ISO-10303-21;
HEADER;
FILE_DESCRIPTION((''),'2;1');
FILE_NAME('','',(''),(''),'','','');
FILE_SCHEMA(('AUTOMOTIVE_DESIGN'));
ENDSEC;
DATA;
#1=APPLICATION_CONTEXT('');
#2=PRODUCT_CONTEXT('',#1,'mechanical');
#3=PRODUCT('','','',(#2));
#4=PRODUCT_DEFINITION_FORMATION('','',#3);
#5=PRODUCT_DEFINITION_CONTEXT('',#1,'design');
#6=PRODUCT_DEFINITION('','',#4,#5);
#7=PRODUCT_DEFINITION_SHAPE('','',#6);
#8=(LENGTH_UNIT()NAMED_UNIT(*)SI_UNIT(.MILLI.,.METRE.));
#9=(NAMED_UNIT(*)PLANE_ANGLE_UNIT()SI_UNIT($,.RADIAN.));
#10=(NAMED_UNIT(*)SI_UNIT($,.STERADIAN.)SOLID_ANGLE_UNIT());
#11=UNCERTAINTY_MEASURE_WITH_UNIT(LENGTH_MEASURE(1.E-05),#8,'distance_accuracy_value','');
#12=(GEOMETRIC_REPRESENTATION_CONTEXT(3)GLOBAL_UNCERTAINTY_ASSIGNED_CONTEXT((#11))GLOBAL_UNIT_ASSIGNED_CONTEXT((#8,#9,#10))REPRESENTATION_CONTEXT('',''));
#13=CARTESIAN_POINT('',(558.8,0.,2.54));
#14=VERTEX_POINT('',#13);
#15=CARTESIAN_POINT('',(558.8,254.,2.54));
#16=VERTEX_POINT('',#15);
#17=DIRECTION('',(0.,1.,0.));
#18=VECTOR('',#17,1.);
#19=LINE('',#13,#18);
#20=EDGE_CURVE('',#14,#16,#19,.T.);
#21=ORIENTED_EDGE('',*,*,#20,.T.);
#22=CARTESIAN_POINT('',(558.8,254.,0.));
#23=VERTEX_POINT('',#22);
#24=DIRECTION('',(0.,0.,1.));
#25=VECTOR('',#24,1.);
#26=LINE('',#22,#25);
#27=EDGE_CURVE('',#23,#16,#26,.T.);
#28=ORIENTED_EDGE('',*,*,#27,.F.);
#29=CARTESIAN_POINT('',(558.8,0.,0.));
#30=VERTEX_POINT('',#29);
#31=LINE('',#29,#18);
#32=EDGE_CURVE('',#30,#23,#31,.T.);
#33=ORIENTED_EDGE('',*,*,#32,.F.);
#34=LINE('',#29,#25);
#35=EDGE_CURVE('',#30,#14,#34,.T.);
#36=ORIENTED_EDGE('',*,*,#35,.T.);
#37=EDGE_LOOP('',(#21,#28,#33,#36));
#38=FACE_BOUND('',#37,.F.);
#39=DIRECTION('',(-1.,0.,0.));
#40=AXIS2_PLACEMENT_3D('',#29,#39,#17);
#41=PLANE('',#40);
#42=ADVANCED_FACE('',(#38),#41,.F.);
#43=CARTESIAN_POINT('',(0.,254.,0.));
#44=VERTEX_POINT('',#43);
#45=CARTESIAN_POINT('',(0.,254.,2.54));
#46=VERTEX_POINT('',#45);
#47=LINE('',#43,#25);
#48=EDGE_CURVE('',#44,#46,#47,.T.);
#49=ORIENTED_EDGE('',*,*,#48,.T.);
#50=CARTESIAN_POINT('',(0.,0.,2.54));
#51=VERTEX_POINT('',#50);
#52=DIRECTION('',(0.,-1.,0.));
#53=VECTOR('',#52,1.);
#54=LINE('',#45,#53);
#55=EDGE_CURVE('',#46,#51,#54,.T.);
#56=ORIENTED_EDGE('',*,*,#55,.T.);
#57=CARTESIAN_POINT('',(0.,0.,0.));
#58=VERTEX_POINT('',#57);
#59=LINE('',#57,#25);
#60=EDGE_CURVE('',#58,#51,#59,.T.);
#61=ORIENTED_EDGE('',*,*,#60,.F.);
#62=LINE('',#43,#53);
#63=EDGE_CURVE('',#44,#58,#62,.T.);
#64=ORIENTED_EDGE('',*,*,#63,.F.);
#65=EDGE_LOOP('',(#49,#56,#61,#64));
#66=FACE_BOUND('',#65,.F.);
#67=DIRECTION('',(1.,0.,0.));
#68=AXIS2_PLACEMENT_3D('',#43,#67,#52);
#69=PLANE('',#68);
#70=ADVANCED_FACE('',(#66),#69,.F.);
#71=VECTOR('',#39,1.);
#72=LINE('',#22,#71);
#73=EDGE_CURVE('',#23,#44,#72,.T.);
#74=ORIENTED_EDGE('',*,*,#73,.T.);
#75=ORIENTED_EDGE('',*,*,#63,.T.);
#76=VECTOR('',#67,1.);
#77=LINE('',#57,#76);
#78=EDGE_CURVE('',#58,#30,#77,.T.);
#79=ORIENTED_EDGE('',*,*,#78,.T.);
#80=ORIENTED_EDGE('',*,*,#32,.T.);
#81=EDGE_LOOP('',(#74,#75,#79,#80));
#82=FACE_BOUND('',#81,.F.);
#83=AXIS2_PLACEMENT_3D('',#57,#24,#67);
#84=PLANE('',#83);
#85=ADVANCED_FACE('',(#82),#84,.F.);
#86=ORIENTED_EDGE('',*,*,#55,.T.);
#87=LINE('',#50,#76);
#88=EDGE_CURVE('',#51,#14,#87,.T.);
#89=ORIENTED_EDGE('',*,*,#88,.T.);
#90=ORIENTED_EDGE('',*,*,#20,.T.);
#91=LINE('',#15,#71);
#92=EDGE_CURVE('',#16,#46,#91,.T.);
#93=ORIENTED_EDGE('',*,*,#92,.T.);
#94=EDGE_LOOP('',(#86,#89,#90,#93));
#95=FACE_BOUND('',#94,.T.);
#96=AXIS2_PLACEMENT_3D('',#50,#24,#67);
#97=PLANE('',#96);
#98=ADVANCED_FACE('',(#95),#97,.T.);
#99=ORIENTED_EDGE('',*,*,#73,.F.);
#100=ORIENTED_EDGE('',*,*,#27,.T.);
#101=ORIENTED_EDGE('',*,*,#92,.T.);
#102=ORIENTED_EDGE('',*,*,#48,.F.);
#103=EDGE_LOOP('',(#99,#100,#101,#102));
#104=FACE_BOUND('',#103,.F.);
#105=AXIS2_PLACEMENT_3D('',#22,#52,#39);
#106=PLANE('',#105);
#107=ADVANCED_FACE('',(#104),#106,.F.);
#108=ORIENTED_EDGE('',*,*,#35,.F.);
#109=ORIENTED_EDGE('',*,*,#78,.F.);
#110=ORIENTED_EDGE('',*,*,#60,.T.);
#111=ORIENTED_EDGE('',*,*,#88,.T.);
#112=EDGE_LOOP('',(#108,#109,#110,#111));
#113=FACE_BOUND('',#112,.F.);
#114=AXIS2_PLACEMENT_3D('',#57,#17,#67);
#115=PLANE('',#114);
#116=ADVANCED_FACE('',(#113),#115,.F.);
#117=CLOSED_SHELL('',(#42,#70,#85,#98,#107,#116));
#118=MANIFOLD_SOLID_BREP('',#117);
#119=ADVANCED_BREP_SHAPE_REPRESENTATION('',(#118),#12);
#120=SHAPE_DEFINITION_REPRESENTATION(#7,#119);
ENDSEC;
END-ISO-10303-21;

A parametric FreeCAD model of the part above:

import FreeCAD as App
import Part
import Sketcher

V = App.Vector
Q = App.Units.Quantity

doc = App.newDocument("Part")
body = doc.addObject("PartDesign::Body", "Body")

sketch1 = doc.addObject("Sketcher::SketchObject", "Sketch")
body.addObject(sketch1)
sketch1.AttachmentSupport = (doc.XY_Plane, [""])
sketch1.MapMode = "FlatFace"
sketch1.addGeometry([
    Part.LineSegment(V(0, 254, 0), V(0, 0, 0)),
    Part.LineSegment(V(0, 0, 0), V(559, 0, 0)),
    Part.LineSegment(V(559, 0, 0), V(559, 254, 0)),
    Part.LineSegment(V(559, 254, 0), V(0, 254, 0)),
], False)
sketch1.addConstraint([
    Sketcher.Constraint("Coincident", 0, 2, 1, 1),
    Sketcher.Constraint("Coincident", 1, 2, 2, 1),
    Sketcher.Constraint("Coincident", 2, 2, 3, 1),
    Sketcher.Constraint("Coincident", 3, 2, 0, 1),
    Sketcher.Constraint("Vertical", 0),
    Sketcher.Constraint("Horizontal", 1),
    Sketcher.Constraint("Vertical", 2),
    Sketcher.Constraint("Horizontal", 3),
    Sketcher.Constraint("Coincident", 0, 2, -1, 1),
    Sketcher.Constraint("DistanceX", 1, 1, 1, 2, Q("22 in")),
    Sketcher.Constraint("DistanceY", 0, 2, 0, 1, Q("10 in")),
])
pad1 = doc.addObject("PartDesign::Pad", "Pad")
body.addObject(pad1)
pad1.Profile = sketch1
pad1.Length = Q("0.1 in")

doc.recompute()
